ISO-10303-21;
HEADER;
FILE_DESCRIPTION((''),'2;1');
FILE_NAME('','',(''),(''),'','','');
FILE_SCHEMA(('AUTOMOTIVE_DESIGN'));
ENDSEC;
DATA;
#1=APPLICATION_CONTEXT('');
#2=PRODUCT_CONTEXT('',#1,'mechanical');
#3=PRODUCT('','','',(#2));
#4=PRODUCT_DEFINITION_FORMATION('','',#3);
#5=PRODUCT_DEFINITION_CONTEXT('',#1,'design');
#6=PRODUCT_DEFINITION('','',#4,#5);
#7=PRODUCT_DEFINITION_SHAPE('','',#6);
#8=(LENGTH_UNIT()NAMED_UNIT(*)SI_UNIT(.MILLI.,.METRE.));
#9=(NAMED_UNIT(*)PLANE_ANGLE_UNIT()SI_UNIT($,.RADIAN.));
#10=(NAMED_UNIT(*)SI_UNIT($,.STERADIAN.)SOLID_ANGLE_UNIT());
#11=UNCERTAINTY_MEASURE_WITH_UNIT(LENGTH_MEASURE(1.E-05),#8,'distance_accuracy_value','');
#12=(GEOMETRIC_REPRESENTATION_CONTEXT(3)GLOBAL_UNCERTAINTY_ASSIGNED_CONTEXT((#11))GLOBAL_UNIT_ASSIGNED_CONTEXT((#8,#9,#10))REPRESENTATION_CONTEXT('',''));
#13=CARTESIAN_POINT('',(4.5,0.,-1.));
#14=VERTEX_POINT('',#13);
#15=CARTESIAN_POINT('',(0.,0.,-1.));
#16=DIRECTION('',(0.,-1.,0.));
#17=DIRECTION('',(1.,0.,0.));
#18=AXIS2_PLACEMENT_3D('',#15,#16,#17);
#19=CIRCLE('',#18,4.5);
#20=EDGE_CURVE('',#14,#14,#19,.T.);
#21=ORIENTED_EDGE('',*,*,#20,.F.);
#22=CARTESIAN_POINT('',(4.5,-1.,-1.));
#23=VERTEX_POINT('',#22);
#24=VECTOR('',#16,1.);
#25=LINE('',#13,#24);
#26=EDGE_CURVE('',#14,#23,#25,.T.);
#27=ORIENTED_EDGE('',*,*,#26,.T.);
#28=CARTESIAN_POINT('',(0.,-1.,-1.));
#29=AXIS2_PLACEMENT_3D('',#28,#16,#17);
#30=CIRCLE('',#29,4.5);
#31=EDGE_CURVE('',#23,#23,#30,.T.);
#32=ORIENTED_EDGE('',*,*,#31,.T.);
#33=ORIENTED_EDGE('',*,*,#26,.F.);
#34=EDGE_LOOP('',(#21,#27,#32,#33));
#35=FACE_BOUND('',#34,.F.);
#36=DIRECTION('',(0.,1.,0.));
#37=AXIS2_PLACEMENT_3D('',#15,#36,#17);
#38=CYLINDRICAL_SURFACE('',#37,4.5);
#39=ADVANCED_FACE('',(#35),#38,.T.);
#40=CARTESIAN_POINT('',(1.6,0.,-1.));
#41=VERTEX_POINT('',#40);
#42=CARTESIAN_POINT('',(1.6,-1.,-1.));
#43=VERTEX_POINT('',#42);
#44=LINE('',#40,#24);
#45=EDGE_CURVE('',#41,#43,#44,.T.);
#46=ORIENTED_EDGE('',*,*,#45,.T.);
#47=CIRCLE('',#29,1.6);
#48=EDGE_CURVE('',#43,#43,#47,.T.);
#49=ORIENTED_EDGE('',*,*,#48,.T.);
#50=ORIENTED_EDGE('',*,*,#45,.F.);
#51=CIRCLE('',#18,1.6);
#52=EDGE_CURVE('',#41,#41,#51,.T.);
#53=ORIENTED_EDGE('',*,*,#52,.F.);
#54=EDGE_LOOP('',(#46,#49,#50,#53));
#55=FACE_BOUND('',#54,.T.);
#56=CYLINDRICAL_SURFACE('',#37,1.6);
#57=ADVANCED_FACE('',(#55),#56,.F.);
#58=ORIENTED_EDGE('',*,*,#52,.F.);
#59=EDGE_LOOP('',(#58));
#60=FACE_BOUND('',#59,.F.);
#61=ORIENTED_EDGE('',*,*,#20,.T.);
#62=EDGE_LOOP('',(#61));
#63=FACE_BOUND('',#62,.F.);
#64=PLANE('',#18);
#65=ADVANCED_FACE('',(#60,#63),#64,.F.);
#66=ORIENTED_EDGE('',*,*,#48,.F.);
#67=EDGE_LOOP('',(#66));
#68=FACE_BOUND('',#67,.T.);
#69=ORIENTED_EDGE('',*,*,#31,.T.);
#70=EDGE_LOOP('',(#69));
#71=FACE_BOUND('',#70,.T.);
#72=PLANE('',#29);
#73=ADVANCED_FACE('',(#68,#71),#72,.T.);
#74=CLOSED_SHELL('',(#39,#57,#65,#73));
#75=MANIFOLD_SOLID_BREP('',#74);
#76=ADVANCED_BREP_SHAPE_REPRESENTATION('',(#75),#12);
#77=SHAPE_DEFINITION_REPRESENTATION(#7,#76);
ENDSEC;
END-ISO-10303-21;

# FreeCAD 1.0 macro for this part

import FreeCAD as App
import Part
import Sketcher

V = App.Vector

doc = App.newDocument("Part")
body = doc.addObject("PartDesign::Body", "Body")

sketch1 = body.newObject("Sketcher::SketchObject", "Sketch")
sketch1.AttachmentSupport = (doc.getObject("XY_Plane"), [""])
sketch1.MapMode = "FlatFace"
sketch1.addGeometry(Part.Circle(V(0, 0, 0), V(0, 0, 1), 1.6), False)
sketch1.addConstraint([
    Sketcher.Constraint("Coincident", 0, 3, -1, 1),
    Sketcher.Constraint("Diameter", 0, 3.2),
])
pad1 = body.newObject("PartDesign::Pad", "Pad")
pad1.Profile = sketch1
pad1.Length = 1
body2 = doc.addObject("PartDesign::Body", "Body001")

sketch2 = body2.newObject("Sketcher::SketchObject", "Sketch001")
sketch2.AttachmentSupport = (doc.getObject("XY_Plane001"), [""])
sketch2.MapMode = "FlatFace"
sketch2.addGeometry(Part.Circle(V(0, 0, 0), V(0, 0, 1), 4.5), False)
sketch2.addConstraint([
    Sketcher.Constraint("Coincident", 0, 3, -1, 1),
    Sketcher.Constraint("Diameter", 0, 9.0),
])
pad2 = body2.newObject("PartDesign::Pad", "Pad001")
pad2.Profile = sketch2
pad2.Length = 1
doc.recompute()

boolean = body2.newObject("PartDesign::Boolean", "Boolean")
boolean.Type = "Cut"
boolean.addObjects([body])
body3 = doc.addObject("PartDesign::Body", "Body002")
doc.recompute()

body2.Placement = App.Placement(V(0, 0, -1), App.Rotation(V(1, 0, 0), 90))
boolean2 = body3.newObject("PartDesign::Boolean", "Boolean001")
boolean2.Type = "Fuse"
boolean2.addObjects([body2])

doc.recompute()
